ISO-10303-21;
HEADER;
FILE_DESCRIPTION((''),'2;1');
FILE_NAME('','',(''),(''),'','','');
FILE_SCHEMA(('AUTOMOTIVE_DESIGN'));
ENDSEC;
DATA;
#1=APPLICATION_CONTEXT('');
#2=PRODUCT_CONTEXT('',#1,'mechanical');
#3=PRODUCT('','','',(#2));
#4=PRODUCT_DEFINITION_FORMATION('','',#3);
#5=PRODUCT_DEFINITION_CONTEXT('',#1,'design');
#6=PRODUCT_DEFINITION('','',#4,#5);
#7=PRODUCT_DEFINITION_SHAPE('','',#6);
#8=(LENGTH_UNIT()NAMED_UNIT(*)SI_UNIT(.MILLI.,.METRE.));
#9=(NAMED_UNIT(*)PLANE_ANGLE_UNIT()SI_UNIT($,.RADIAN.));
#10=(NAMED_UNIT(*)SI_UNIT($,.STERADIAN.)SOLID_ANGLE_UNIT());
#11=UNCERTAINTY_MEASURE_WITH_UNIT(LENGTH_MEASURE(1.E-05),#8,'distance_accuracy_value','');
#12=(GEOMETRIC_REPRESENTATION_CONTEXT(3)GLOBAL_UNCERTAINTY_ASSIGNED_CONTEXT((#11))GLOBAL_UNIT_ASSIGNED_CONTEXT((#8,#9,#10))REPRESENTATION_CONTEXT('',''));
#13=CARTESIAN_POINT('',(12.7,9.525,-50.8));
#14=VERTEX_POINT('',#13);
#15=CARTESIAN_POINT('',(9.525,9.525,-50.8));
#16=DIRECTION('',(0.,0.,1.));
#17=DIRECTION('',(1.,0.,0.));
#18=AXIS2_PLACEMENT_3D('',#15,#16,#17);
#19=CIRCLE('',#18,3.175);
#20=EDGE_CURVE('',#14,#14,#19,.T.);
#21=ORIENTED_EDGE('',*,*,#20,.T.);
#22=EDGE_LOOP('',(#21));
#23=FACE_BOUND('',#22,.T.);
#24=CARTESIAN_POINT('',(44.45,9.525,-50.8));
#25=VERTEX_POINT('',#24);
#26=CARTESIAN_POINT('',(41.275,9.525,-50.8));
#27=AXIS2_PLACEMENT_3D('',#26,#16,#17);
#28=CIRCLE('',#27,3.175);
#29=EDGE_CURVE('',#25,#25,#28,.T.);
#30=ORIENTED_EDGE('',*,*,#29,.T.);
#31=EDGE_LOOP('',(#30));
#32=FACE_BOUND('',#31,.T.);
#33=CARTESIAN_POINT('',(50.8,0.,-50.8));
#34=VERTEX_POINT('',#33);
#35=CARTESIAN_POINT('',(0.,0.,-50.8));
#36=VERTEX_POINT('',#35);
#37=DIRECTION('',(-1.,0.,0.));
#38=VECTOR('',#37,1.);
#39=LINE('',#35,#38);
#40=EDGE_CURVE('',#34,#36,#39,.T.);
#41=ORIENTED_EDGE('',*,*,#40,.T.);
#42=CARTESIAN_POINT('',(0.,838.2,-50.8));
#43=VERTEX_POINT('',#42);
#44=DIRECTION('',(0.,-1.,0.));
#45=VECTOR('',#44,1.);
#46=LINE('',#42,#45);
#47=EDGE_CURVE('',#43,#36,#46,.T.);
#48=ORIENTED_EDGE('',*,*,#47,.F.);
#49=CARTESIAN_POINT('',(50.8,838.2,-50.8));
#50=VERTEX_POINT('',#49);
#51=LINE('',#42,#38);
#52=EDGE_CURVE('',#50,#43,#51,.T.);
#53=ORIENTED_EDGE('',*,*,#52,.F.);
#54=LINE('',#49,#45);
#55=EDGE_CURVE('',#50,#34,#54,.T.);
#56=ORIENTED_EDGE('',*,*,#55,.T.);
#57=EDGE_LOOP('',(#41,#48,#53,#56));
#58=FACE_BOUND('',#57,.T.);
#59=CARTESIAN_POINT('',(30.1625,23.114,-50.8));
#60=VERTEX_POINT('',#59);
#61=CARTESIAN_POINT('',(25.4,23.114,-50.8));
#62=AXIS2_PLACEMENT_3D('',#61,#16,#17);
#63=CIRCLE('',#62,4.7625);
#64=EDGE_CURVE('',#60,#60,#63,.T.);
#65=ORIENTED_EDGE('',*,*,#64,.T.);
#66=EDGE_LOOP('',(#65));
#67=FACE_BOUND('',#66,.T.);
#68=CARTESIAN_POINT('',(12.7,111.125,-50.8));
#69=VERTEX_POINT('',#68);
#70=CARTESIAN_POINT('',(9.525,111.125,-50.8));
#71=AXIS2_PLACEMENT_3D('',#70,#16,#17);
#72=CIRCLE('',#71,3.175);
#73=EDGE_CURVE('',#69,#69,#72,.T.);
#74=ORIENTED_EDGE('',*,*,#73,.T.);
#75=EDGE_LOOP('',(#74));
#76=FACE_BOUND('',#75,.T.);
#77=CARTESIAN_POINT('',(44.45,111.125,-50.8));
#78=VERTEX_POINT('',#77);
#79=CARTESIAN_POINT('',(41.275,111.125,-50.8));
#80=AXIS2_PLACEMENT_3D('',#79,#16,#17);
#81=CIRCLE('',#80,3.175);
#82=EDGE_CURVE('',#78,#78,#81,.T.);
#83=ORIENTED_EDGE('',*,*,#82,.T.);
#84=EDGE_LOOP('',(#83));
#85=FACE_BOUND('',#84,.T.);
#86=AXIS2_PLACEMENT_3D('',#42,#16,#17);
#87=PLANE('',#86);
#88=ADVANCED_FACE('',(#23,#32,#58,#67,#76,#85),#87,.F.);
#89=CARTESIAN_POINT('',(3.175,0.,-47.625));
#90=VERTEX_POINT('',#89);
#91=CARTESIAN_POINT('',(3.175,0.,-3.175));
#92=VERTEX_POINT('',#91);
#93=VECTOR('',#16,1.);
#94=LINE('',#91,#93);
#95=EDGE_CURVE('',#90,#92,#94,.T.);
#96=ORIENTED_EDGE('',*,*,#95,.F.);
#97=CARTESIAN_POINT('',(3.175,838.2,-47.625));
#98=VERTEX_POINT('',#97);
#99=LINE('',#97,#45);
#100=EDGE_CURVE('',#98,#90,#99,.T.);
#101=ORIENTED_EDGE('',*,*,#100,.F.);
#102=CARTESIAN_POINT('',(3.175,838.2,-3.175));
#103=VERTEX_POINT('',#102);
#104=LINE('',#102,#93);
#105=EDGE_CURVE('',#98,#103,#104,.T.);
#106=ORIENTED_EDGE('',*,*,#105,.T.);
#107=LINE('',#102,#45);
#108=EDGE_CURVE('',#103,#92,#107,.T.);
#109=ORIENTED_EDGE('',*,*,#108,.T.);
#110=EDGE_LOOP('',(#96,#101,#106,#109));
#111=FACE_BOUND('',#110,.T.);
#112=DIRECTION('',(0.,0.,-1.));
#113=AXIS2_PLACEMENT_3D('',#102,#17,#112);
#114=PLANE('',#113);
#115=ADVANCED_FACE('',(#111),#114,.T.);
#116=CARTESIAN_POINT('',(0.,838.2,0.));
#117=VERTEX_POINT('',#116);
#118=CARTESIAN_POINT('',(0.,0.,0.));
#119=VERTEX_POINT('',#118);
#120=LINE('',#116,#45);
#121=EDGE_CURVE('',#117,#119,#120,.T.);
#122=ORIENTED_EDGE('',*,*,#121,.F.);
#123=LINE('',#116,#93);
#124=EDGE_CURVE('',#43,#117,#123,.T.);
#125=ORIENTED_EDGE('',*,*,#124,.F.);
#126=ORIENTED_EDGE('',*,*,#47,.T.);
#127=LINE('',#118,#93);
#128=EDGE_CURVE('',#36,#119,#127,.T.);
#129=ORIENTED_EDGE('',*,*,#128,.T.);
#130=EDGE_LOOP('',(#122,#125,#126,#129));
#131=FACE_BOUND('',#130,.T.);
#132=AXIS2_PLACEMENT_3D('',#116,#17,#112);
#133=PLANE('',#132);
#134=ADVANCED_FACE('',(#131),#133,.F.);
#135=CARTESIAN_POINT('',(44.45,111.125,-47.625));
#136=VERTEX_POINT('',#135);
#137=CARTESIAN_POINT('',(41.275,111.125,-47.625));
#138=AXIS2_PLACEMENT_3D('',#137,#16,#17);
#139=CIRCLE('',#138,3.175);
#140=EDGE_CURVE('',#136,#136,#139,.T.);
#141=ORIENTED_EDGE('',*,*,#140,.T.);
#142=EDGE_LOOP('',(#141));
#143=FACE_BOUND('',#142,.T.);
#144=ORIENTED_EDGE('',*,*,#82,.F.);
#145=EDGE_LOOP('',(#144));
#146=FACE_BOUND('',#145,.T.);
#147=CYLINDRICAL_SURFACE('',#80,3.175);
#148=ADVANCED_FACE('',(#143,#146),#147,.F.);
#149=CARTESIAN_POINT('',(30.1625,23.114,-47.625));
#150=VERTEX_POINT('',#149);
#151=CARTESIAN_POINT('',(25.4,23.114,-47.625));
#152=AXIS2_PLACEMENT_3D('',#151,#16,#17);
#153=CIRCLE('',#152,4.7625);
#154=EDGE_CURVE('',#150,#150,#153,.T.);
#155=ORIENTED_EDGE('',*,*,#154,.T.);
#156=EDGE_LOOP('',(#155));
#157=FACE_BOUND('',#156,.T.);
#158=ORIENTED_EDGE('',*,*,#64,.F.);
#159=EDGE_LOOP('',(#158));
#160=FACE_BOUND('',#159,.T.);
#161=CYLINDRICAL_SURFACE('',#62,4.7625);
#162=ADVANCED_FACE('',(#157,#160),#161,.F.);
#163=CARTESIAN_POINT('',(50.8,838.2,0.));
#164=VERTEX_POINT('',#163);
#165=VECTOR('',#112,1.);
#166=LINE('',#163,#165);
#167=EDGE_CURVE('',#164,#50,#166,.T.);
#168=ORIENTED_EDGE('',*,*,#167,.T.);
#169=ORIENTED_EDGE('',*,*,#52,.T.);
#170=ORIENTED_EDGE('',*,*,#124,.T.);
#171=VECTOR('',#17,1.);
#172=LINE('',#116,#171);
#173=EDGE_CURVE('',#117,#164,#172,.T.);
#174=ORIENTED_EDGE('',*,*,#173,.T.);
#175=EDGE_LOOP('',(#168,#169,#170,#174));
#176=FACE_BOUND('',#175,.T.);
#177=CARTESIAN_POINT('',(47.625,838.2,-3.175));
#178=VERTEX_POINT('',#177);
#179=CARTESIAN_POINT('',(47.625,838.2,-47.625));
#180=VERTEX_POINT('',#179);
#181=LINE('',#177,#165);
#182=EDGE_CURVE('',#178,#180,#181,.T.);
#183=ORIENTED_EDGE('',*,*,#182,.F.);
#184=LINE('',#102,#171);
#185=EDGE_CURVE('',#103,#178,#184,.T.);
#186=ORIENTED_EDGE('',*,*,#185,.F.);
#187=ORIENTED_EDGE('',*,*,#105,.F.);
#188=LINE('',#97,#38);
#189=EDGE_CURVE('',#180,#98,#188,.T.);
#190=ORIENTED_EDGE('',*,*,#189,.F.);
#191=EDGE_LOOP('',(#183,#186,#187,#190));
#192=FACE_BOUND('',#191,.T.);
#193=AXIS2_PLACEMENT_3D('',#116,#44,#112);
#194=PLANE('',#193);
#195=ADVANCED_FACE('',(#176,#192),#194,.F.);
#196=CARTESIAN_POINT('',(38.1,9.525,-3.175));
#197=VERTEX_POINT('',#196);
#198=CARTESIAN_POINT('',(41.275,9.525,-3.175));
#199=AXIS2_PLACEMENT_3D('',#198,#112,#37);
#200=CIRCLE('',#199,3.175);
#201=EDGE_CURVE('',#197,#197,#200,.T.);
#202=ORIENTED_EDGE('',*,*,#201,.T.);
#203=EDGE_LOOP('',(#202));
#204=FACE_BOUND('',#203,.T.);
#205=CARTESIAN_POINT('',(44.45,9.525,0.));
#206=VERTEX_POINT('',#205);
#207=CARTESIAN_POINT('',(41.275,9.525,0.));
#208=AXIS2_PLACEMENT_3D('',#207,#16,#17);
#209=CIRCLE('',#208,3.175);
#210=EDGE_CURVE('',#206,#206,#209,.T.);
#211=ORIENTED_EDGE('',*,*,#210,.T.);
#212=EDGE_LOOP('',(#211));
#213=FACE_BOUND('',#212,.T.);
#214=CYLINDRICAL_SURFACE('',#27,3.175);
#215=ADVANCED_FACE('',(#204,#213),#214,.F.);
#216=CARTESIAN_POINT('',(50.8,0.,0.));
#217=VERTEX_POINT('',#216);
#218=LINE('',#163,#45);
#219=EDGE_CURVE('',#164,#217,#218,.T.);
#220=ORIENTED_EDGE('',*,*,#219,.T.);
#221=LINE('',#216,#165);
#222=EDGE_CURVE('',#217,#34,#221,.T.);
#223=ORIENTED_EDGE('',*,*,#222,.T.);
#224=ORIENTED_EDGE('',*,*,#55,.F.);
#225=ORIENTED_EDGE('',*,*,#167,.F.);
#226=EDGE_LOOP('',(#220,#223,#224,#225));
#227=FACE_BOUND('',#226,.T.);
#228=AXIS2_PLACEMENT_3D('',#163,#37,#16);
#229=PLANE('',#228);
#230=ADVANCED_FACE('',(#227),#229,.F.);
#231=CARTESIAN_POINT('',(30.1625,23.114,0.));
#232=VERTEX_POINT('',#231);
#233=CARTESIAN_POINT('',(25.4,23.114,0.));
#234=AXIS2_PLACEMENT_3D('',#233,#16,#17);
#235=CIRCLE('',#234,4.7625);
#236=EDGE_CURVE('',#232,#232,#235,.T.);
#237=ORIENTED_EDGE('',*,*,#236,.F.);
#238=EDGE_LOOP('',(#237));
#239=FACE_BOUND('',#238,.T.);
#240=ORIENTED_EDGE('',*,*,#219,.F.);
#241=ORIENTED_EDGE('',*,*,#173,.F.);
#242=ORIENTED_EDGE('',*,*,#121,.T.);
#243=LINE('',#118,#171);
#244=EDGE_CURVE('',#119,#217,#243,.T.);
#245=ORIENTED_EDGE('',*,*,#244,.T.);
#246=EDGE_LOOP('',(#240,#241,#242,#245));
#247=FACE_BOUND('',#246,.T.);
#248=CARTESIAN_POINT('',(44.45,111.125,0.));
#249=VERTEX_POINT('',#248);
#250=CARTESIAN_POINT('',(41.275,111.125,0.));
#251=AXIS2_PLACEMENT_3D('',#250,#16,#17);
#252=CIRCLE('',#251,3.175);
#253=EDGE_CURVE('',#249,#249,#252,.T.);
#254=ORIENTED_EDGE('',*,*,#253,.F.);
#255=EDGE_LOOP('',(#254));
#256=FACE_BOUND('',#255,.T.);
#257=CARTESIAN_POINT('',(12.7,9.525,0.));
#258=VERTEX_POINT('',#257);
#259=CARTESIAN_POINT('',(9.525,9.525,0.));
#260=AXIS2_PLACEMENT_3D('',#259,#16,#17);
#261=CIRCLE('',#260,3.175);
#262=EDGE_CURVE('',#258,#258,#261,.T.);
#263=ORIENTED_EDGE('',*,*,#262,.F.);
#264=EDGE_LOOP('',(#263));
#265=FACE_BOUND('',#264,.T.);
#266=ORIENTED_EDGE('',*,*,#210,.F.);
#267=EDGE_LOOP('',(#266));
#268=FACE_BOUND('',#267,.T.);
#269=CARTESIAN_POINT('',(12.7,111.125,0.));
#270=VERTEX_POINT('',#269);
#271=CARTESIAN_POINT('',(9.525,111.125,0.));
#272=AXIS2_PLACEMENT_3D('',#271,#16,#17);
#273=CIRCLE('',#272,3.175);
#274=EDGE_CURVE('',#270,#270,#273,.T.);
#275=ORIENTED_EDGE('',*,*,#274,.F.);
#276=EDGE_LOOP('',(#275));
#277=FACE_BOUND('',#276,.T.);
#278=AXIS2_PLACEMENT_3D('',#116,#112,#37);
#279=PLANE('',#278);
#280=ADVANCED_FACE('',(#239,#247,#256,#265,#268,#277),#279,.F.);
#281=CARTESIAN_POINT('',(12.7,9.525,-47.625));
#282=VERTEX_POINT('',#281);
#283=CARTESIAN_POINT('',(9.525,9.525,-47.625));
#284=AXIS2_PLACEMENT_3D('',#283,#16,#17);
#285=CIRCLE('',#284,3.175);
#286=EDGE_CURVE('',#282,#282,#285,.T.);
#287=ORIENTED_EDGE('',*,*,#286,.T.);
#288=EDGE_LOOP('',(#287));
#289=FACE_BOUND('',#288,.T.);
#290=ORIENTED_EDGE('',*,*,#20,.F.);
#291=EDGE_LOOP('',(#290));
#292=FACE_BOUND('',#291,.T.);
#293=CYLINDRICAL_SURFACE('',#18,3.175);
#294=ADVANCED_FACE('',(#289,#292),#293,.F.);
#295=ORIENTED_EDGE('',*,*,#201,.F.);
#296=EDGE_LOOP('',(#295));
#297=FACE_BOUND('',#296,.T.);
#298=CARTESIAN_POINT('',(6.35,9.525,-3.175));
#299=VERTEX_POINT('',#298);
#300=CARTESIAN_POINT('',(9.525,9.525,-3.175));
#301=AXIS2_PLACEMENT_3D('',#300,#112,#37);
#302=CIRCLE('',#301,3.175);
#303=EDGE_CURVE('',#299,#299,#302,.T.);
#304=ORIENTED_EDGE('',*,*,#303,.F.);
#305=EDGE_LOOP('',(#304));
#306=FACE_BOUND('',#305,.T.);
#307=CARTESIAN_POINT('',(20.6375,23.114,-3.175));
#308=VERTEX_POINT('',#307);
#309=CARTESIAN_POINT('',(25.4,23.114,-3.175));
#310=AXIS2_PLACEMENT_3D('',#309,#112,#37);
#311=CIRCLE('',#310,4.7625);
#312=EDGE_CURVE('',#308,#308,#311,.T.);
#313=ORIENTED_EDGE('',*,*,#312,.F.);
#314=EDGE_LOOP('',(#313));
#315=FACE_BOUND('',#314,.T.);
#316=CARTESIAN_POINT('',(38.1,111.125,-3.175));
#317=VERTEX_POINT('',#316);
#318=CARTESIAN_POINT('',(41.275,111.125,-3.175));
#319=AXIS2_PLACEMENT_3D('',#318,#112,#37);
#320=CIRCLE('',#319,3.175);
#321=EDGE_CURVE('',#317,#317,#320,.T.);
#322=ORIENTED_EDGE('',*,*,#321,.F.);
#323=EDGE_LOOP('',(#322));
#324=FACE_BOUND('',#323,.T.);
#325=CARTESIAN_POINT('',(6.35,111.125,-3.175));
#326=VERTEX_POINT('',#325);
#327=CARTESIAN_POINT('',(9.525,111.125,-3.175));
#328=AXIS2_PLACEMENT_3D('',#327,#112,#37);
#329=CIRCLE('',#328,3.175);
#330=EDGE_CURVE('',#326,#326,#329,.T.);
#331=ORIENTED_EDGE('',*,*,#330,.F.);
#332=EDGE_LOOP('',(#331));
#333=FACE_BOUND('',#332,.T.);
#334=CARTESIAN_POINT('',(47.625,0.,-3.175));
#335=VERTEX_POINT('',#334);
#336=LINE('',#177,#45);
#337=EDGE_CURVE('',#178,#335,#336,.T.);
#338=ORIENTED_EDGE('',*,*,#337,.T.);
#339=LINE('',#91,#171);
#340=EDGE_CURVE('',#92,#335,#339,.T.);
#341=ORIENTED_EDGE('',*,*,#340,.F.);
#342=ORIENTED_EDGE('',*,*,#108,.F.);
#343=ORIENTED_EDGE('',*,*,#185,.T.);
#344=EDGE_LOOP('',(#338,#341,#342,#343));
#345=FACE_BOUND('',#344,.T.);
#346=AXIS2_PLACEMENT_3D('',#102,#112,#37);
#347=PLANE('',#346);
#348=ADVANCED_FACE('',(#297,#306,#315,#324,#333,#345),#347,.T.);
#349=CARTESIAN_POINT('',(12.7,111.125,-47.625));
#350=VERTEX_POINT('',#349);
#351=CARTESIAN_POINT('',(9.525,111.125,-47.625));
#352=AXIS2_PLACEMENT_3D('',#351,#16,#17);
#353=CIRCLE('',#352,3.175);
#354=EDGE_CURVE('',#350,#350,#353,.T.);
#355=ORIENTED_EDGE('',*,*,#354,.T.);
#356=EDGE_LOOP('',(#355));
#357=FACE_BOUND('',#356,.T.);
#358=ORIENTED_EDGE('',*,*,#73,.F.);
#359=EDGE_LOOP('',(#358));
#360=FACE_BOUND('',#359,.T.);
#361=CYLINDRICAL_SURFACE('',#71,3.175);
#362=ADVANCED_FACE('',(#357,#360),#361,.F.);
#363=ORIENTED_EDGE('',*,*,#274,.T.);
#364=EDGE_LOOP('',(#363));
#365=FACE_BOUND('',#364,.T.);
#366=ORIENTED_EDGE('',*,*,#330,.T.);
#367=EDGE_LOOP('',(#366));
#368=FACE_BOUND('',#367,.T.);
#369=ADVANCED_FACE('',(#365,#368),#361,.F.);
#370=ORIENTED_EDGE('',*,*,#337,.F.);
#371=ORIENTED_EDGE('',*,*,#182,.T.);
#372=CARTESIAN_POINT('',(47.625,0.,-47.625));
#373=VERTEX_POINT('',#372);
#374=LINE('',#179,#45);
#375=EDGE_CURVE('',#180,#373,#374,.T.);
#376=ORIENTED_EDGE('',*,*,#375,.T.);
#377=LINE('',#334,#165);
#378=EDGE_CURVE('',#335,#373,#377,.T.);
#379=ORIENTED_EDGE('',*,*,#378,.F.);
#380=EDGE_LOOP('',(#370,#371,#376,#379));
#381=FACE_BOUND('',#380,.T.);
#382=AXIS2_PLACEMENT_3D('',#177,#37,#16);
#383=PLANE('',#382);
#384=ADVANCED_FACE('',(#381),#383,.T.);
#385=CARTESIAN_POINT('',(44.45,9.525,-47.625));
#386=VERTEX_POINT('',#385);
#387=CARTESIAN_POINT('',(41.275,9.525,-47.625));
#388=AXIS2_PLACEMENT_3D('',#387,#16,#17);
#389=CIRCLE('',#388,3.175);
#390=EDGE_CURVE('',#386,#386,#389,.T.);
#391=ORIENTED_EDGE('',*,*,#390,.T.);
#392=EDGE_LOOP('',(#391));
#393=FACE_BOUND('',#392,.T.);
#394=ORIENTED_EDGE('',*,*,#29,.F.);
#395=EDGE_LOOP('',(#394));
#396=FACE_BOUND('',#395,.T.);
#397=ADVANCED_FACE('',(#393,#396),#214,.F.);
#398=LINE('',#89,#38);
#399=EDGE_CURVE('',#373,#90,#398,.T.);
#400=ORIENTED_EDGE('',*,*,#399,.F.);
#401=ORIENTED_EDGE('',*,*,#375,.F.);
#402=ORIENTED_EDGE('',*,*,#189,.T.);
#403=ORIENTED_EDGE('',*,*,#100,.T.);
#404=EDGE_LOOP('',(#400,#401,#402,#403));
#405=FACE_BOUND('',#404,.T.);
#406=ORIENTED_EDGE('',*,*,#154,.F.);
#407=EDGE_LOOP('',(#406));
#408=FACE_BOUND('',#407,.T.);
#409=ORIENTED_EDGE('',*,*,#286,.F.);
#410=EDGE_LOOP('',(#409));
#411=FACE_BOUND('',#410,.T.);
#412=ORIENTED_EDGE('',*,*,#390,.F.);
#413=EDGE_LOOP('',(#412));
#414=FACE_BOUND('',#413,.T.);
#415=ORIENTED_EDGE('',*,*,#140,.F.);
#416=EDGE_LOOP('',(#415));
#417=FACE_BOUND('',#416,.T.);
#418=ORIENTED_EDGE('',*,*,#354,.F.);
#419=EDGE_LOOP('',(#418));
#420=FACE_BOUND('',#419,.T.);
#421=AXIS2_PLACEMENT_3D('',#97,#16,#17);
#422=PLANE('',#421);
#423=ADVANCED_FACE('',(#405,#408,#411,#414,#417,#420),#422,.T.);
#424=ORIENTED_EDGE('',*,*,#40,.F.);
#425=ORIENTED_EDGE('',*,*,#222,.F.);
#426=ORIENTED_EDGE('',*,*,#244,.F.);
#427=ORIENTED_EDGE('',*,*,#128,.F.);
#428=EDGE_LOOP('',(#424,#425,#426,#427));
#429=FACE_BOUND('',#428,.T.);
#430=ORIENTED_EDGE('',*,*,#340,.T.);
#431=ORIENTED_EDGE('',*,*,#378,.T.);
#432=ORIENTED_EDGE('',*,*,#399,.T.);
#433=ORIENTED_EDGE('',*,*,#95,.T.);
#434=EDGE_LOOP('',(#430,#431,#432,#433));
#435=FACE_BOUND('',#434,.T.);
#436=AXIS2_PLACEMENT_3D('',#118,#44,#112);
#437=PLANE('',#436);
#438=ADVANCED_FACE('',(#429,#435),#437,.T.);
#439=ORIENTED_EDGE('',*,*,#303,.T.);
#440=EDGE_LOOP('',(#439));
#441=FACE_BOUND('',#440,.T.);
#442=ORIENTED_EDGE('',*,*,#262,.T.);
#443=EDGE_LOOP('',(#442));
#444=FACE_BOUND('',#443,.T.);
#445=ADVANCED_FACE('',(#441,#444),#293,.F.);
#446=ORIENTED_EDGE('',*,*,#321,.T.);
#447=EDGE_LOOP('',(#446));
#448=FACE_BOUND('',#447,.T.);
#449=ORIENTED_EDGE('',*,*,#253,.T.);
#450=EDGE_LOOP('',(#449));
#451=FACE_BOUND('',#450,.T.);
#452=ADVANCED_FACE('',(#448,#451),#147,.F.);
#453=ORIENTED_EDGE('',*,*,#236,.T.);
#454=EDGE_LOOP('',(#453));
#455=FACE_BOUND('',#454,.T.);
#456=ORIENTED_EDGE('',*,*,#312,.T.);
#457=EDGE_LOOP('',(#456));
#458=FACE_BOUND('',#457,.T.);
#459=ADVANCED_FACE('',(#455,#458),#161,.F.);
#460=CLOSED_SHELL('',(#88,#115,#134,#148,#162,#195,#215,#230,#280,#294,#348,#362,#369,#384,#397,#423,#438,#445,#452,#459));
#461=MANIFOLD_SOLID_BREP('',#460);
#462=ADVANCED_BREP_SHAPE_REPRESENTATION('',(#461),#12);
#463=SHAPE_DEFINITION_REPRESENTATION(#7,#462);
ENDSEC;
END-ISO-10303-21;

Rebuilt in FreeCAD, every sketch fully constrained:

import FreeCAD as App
import Part
import Sketcher

V = App.Vector
Q = App.Units.Quantity

doc = App.newDocument("Part")
params = doc.addObject("Spreadsheet::Sheet", "Params")
for row, (alias, value) in enumerate([
    ("sketch1_width", "2 in"),
    ("sketch1_width2", "1.75 in"),
    ("pad1_length", "33 in"),
    ("sketch2_diameter", "0.25 in"),
    ("sketch2_diameter2", "0.375 in"),
], start=1):
    params.set(f"A{row}", alias)
    params.set(f"B{row}", "=" + value)
    params.setAlias(f"B{row}", alias)

body = doc.addObject("PartDesign::Body", "Body")

sketch1 = body.newObject("Sketcher::SketchObject", "Sketch")
sketch1.AttachmentSupport = (doc.getObject("XZ_Plane"), [""])
sketch1.MapMode = "FlatFace"
sketch1.addGeometry([
    Part.LineSegment(V(0, -51, 0), V(0, 0, 0)),
    Part.LineSegment(V(0, 0, 0), V(51, 0, 0)),
    Part.LineSegment(V(51, 0, 0), V(51, -51, 0)),
    Part.LineSegment(V(51, -51, 0), V(0, -51, 0)),
    Part.LineSegment(V(48, -3, 0), V(3, -3, 0)),
    Part.LineSegment(V(3, -3, 0), V(3, -48, 0)),
    Part.LineSegment(V(3, -48, 0), V(48, -48, 0)),
    Part.LineSegment(V(48, -48, 0), V(48, -3, 0)),
], False)
sketch1.addConstraint([
    Sketcher.Constraint("Coincident", 0, 2, 1, 1),
    Sketcher.Constraint("Coincident", 1, 2, 2, 1),
    Sketcher.Constraint("Coincident", 2, 2, 3, 1),
    Sketcher.Constraint("Coincident", 3, 2, 0, 1),
    Sketcher.Constraint("Coincident", 4, 2, 5, 1),
    Sketcher.Constraint("Coincident", 5, 2, 6, 1),
    Sketcher.Constraint("Coincident", 6, 2, 7, 1),
    Sketcher.Constraint("Coincident", 7, 2, 4, 1),
    Sketcher.Constraint("Vertical", 0),
    Sketcher.Constraint("Horizontal", 1),
    Sketcher.Constraint("Vertical", 2),
    Sketcher.Constraint("Horizontal", 3),
    Sketcher.Constraint("Horizontal", 4),
    Sketcher.Constraint("Vertical", 5),
    Sketcher.Constraint("Horizontal", 6),
    Sketcher.Constraint("Vertical", 7),
    Sketcher.Constraint("Coincident", 0, 2, -1, 1),
    Sketcher.Constraint("Equal", 3, 0),
    Sketcher.Constraint("Equal", 6, 5),
    Sketcher.Constraint("DistanceX", 1, 1, 1, 2, Q("2 in")),
    Sketcher.Constraint("DistanceX", 4, 2, 4, 1, Q("1.75 in")),
    Sketcher.Constraint("DistanceX", -1, 1, 4, 2, Q("0.125 in")),
    Sketcher.Constraint("DistanceY", 4, 2, -1, 1, Q("0.125 in")),
])
sketch1.setExpression("Constraints[19]", "Params.sketch1_width")
sketch1.setExpression("Constraints[20]", "Params.sketch1_width2")
pad1 = body.newObject("PartDesign::Pad", "Pad")
pad1.Profile = sketch1
pad1.setExpression("Length", "Params.pad1_length")
pad1.Reversed = True

sketch2 = body.newObject("Sketcher::SketchObject", "Sketch001")
sketch2.AttachmentSupport = (doc.getObject("XY_Plane"), [""])
sketch2.MapMode = "FlatFace"
sketch2.addGeometry([
    Part.Circle(V(9.5, 111.1, 0), V(0, 0, 1), 3.2),
    Part.Circle(V(41.3, 111.1, 0), V(0, 0, 1), 3.2),
    Part.Circle(V(9.5, 9.5, 0), V(0, 0, 1), 3.2),
    Part.Circle(V(41.3, 9.5, 0), V(0, 0, 1), 3.2),
    Part.Circle(V(25.4, 23.1, 0), V(0, 0, 1), 4.8),
], False)
sketch2.addConstraint([
    Sketcher.Constraint("Equal", 0, 1),
    Sketcher.Constraint("Equal", 1, 2),
    Sketcher.Constraint("Equal", 2, 3),
    Sketcher.Constraint("Horizontal", 0, 3, 1, 3),
    Sketcher.Constraint("Horizontal", 2, 3, 3, 3),
    Sketcher.Constraint("Vertical", 0, 3, 2, 3),
    Sketcher.Constraint("Vertical", 1, 3, 3, 3),
    Sketcher.Constraint("Diameter", 0, Q("0.25 in")),
    Sketcher.Constraint("Diameter", 4, Q("0.375 in")),
    Sketcher.Constraint("DistanceX", -1, 1, 4, 3, Q("1 in")),
    Sketcher.Constraint("DistanceY", 2, 3, 0, 3, Q("4 in")),
    Sketcher.Constraint("DistanceY", -1, 1, 4, 3, Q("0.91 in")),
    Sketcher.Constraint("DistanceX", 0, 3, 1, 3, Q("1.25 in")),
    Sketcher.Constraint("DistanceX", -1, 1, 0, 3, Q("0.375 in")),
    Sketcher.Constraint("DistanceY", -1, 1, 0, 3, Q("4.375 in")),
])
sketch2.setExpression("Constraints[7]", "Params.sketch2_diameter")
sketch2.setExpression("Constraints[8]", "Params.sketch2_diameter2")
pocket1 = body.newObject("PartDesign::Pocket", "Pocket")
pocket1.Profile = sketch2
pocket1.Type = "ThroughAll"

doc.recompute()
